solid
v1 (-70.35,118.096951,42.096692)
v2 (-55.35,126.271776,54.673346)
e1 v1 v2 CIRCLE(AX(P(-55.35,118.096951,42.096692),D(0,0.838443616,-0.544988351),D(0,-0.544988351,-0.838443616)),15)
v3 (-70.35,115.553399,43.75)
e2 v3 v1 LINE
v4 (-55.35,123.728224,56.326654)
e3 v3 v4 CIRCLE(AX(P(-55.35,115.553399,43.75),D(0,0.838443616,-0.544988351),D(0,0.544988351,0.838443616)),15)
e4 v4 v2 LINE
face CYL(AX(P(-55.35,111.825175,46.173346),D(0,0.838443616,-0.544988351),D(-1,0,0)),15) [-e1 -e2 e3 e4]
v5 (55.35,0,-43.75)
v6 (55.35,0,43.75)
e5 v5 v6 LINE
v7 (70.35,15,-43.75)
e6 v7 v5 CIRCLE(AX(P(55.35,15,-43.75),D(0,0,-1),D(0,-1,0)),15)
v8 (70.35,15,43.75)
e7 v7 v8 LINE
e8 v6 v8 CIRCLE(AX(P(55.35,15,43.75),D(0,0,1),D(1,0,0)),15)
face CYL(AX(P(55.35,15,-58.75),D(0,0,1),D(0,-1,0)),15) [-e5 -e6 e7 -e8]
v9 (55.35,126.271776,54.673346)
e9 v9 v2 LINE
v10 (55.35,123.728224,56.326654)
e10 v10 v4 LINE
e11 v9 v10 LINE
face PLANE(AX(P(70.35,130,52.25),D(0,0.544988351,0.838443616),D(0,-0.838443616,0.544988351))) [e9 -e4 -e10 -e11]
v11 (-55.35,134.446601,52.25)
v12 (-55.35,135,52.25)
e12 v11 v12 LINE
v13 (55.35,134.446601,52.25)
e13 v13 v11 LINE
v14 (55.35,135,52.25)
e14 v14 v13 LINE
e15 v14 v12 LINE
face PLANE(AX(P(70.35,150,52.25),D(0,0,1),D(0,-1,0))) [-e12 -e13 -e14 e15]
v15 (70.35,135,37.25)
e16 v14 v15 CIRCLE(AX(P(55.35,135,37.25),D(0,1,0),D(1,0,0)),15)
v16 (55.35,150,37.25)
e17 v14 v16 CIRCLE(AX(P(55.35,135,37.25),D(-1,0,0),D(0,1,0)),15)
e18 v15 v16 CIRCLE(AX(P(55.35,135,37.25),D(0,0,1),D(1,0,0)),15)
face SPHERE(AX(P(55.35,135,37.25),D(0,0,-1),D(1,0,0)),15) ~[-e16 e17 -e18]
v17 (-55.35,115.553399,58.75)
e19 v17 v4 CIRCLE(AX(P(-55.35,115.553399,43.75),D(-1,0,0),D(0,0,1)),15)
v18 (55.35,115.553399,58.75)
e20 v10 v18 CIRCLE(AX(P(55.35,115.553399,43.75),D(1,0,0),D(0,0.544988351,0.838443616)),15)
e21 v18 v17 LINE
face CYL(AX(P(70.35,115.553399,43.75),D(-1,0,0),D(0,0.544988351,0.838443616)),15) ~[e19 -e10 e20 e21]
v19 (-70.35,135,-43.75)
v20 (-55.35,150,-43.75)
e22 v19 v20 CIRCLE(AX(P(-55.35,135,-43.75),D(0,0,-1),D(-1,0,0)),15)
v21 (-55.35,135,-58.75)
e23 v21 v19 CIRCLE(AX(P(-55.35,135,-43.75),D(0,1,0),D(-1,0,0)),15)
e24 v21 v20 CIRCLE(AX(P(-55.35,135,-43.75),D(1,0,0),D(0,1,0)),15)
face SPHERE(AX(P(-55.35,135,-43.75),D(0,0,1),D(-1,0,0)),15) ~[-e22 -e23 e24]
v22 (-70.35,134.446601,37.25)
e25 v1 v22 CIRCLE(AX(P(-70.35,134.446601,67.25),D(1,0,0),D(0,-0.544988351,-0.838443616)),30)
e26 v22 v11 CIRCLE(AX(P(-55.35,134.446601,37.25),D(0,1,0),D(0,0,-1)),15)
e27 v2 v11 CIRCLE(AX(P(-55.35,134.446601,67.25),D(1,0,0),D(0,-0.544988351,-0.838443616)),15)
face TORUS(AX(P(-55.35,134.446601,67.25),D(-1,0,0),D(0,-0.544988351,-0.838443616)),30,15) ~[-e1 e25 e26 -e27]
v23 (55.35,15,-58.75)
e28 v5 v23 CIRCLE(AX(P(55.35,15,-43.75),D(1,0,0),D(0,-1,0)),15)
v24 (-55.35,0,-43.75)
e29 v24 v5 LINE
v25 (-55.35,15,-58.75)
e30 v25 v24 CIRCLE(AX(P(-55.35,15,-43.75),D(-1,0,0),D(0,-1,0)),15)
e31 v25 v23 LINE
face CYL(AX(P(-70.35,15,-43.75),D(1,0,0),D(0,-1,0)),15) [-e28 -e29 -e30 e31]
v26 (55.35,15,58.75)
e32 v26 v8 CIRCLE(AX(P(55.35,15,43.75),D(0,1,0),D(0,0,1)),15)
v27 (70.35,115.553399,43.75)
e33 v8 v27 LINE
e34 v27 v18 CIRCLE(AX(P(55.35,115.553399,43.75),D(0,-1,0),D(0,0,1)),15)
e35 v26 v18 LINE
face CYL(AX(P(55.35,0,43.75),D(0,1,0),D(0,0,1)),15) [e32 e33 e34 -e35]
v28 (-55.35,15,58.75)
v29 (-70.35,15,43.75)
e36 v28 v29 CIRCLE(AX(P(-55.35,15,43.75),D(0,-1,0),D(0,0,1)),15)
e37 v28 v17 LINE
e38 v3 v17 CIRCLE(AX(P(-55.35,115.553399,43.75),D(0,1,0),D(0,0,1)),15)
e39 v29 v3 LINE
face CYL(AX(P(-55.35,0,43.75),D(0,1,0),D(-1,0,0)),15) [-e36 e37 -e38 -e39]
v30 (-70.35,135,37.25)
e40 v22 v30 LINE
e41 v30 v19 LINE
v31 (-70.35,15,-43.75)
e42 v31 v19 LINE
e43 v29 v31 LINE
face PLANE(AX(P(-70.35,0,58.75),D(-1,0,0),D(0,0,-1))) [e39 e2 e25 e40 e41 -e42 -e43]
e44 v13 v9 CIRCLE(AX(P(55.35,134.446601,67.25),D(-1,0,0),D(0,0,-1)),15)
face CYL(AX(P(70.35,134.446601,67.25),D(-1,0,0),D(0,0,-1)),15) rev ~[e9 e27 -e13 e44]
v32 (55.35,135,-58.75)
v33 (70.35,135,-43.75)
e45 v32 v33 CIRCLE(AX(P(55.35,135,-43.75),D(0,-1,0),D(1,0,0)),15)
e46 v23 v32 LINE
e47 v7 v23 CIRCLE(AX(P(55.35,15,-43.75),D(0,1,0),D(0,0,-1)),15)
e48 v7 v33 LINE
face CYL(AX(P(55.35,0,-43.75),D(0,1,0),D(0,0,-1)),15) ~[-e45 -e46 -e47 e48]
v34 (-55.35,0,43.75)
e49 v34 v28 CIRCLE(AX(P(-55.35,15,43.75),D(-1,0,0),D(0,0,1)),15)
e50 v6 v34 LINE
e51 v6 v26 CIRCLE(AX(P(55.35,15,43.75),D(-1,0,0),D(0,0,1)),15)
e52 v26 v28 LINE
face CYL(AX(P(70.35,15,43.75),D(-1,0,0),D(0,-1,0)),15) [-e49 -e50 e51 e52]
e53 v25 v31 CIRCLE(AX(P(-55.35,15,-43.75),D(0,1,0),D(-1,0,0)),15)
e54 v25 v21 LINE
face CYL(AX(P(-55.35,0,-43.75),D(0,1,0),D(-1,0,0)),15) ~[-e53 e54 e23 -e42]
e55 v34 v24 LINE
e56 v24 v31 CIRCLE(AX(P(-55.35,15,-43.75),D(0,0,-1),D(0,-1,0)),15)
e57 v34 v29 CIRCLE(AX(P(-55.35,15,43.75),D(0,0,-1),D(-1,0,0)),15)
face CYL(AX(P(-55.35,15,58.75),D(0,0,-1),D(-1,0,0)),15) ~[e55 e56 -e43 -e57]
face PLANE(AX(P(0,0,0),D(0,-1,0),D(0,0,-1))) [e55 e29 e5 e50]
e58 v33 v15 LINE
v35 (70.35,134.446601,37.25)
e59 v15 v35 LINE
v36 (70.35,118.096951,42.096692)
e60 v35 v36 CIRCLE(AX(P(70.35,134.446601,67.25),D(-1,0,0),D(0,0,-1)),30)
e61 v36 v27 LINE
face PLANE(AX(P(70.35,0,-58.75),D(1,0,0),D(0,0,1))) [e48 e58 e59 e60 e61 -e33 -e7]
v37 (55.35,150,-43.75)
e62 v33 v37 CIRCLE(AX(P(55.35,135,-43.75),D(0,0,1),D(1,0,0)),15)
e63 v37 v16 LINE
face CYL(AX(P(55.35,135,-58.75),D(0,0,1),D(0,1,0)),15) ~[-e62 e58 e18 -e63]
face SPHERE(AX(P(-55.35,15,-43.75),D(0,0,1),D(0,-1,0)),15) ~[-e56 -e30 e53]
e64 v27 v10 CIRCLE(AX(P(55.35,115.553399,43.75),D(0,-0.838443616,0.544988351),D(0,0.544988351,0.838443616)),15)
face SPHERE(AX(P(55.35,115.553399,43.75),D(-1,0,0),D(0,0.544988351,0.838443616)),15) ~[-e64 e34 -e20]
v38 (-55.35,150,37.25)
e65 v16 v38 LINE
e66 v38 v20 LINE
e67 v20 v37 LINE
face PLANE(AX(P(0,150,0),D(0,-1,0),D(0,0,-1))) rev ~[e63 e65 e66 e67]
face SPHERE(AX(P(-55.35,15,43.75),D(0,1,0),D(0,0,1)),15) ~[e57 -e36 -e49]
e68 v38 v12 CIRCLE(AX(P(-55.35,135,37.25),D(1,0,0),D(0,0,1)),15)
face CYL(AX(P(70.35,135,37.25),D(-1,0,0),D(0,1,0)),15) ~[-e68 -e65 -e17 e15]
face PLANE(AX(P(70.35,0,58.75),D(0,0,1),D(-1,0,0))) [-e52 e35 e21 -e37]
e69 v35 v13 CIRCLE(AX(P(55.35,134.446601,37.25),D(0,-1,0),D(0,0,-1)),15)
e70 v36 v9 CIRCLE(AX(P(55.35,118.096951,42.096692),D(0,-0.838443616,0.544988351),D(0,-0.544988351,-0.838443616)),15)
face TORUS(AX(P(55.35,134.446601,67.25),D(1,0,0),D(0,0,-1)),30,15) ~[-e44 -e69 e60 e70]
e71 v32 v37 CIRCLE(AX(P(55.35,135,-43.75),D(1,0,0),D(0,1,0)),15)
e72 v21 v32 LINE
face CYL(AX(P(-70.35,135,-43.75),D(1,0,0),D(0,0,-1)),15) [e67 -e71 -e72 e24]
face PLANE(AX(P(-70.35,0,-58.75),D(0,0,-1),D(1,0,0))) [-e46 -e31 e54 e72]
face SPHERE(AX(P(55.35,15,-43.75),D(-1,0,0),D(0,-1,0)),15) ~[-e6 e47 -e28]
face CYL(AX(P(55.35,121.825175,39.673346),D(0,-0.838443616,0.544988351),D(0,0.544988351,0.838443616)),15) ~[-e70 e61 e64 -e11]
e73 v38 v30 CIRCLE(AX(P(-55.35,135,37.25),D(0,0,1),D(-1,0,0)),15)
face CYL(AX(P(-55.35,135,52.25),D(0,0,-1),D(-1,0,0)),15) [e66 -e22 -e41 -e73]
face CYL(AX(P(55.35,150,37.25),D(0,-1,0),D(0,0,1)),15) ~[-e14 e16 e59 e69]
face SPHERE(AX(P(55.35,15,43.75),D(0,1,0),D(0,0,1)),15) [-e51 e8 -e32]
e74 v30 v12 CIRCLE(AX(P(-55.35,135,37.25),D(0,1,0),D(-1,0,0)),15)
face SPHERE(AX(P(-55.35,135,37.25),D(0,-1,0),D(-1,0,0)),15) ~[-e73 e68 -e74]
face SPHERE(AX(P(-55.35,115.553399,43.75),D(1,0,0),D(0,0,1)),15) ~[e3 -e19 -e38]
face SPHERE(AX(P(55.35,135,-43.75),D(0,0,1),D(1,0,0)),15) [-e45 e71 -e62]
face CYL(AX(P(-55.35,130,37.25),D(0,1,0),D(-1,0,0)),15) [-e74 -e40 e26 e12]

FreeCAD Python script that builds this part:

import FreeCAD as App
import Part
import Sketcher
Q = App.Units.Quantity

doc = App.newDocument("Part")
params = doc.addObject("Spreadsheet::Sheet", "Params")
for row, (alias, value) in enumerate([
    ("sketch1_width", "140.7 mm"),
    ("sketch1_height", "117.5 mm"),
    ("pad1_length", "150 mm"),
    ("sketch2_width", "30 mm"),
    ("sketch2_width2", "20 mm"),
    ("sketch2_height", "6.5 mm"),
    ("pocket1_length", "172.2631 mm"),
    ("fillet_radius", "15 mm"),
], start=1):
    params.set(f"A{row}", alias)
    params.set(f"B{row}", "=" + value)
    params.setAlias(f"B{row}", alias)

body = doc.addObject("PartDesign::Body", "Body")

sketch1 = body.newObject("Sketcher::SketchObject", "Sketch")
sketch1.AttachmentSupport = (doc.getObject("XZ_Plane"), [""])
sketch1.MapMode = "FlatFace"
sketch1.addGeometry([
    Part.LineSegment(App.Vector(70.35, 58.75, 0), App.Vector(-70.35, 58.75, 0)),
    Part.LineSegment(App.Vector(-70.35, 58.75, 0), App.Vector(-70.35, -58.75, 0)),
    Part.LineSegment(App.Vector(-70.35, -58.75, 0), App.Vector(70.35, -58.75, 0)),
    Part.LineSegment(App.Vector(70.35, -58.75, 0), App.Vector(70.35, 58.75, 0)),
], False)
sketch1.addConstraint([
    Sketcher.Constraint("Coincident", 0, 2, 1, 1),
    Sketcher.Constraint("Coincident", 1, 2, 2, 1),
    Sketcher.Constraint("Coincident", 2, 2, 3, 1),
    Sketcher.Constraint("Coincident", 3, 2, 0, 1),
    Sketcher.Constraint("Horizontal", 0),
    Sketcher.Constraint("Vertical", 1),
    Sketcher.Constraint("Horizontal", 2),
    Sketcher.Constraint("Vertical", 3),
    Sketcher.Constraint("Symmetric", 0, 2, 2, 2, -1, 1),
    Sketcher.Constraint("DistanceX", 0, 2, 0, 1, Q("140.7 mm")),
    Sketcher.Constraint("DistanceY", 1, 2, 1, 1, Q("117.5 mm")),
])
sketch1.setExpression("Constraints[9]", "Params.sketch1_width")
sketch1.setExpression("Constraints[10]", "Params.sketch1_height")
pad1 = body.newObject("PartDesign::Pad", "Pad")
pad1.Profile = sketch1
pad1.setExpression("Length", "Params.pad1_length")
pad1.Reversed = True

sketch2 = body.newObject("Sketcher::SketchObject", "Sketch001")
sketch2.AttachmentSupport = (doc.getObject("YZ_Plane"), [""])
sketch2.MapMode = "FlatFace"
sketch2.AttachmentOffset = App.Placement(App.Vector(0, 0, 70.35), App.Rotation())
sketch2.addGeometry([
    Part.LineSegment(App.Vector(150, 52.25, 0), App.Vector(150, 58.75, 0)),
    Part.LineSegment(App.Vector(150, 58.75, 0), App.Vector(120, 58.75, 0)),
    Part.LineSegment(App.Vector(120, 58.75, 0), App.Vector(130, 52.25, 0)),
    Part.LineSegment(App.Vector(130, 52.25, 0), App.Vector(150, 52.25, 0)),
], False)
sketch2.addConstraint([
    Sketcher.Constraint("Coincident", 0, 2, 1, 1),
    Sketcher.Constraint("Coincident", 1, 2, 2, 1),
    Sketcher.Constraint("Coincident", 2, 2, 3, 1),
    Sketcher.Constraint("Coincident", 3, 2, 0, 1),
    Sketcher.Constraint("Vertical", 0),
    Sketcher.Constraint("Horizontal", 1),
    Sketcher.Constraint("Horizontal", 3),
    Sketcher.Constraint("DistanceX", 1, 2, 1, 1, Q("30 mm")),
    Sketcher.Constraint("DistanceX", 3, 1, 3, 2, Q("20 mm")),
    Sketcher.Constraint("DistanceY", 0, 1, 0, 2, Q("6.5 mm")),
    Sketcher.Constraint("DistanceX", -1, 1, 0, 2, Q("150 mm")),
    Sketcher.Constraint("DistanceY", -1, 1, 0, 2, Q("58.75 mm")),
])
sketch2.setExpression("Constraints[7]", "Params.sketch2_width")
sketch2.setExpression("Constraints[8]", "Params.sketch2_width2")
sketch2.setExpression("Constraints[9]", "Params.sketch2_height")
pocket1 = body.newObject("PartDesign::Pocket", "Pocket")
pocket1.Profile = sketch2
pocket1.setExpression("Length", "Params.pocket1_length")
doc.recompute()

fillet = body.newObject("PartDesign::Fillet", "Fillet")
fillet.Base = (pocket1, ["Edge1"])
fillet.UseAllEdges = True
fillet.setExpression("Radius", "Params.fillet_radius")

doc.recompute()
